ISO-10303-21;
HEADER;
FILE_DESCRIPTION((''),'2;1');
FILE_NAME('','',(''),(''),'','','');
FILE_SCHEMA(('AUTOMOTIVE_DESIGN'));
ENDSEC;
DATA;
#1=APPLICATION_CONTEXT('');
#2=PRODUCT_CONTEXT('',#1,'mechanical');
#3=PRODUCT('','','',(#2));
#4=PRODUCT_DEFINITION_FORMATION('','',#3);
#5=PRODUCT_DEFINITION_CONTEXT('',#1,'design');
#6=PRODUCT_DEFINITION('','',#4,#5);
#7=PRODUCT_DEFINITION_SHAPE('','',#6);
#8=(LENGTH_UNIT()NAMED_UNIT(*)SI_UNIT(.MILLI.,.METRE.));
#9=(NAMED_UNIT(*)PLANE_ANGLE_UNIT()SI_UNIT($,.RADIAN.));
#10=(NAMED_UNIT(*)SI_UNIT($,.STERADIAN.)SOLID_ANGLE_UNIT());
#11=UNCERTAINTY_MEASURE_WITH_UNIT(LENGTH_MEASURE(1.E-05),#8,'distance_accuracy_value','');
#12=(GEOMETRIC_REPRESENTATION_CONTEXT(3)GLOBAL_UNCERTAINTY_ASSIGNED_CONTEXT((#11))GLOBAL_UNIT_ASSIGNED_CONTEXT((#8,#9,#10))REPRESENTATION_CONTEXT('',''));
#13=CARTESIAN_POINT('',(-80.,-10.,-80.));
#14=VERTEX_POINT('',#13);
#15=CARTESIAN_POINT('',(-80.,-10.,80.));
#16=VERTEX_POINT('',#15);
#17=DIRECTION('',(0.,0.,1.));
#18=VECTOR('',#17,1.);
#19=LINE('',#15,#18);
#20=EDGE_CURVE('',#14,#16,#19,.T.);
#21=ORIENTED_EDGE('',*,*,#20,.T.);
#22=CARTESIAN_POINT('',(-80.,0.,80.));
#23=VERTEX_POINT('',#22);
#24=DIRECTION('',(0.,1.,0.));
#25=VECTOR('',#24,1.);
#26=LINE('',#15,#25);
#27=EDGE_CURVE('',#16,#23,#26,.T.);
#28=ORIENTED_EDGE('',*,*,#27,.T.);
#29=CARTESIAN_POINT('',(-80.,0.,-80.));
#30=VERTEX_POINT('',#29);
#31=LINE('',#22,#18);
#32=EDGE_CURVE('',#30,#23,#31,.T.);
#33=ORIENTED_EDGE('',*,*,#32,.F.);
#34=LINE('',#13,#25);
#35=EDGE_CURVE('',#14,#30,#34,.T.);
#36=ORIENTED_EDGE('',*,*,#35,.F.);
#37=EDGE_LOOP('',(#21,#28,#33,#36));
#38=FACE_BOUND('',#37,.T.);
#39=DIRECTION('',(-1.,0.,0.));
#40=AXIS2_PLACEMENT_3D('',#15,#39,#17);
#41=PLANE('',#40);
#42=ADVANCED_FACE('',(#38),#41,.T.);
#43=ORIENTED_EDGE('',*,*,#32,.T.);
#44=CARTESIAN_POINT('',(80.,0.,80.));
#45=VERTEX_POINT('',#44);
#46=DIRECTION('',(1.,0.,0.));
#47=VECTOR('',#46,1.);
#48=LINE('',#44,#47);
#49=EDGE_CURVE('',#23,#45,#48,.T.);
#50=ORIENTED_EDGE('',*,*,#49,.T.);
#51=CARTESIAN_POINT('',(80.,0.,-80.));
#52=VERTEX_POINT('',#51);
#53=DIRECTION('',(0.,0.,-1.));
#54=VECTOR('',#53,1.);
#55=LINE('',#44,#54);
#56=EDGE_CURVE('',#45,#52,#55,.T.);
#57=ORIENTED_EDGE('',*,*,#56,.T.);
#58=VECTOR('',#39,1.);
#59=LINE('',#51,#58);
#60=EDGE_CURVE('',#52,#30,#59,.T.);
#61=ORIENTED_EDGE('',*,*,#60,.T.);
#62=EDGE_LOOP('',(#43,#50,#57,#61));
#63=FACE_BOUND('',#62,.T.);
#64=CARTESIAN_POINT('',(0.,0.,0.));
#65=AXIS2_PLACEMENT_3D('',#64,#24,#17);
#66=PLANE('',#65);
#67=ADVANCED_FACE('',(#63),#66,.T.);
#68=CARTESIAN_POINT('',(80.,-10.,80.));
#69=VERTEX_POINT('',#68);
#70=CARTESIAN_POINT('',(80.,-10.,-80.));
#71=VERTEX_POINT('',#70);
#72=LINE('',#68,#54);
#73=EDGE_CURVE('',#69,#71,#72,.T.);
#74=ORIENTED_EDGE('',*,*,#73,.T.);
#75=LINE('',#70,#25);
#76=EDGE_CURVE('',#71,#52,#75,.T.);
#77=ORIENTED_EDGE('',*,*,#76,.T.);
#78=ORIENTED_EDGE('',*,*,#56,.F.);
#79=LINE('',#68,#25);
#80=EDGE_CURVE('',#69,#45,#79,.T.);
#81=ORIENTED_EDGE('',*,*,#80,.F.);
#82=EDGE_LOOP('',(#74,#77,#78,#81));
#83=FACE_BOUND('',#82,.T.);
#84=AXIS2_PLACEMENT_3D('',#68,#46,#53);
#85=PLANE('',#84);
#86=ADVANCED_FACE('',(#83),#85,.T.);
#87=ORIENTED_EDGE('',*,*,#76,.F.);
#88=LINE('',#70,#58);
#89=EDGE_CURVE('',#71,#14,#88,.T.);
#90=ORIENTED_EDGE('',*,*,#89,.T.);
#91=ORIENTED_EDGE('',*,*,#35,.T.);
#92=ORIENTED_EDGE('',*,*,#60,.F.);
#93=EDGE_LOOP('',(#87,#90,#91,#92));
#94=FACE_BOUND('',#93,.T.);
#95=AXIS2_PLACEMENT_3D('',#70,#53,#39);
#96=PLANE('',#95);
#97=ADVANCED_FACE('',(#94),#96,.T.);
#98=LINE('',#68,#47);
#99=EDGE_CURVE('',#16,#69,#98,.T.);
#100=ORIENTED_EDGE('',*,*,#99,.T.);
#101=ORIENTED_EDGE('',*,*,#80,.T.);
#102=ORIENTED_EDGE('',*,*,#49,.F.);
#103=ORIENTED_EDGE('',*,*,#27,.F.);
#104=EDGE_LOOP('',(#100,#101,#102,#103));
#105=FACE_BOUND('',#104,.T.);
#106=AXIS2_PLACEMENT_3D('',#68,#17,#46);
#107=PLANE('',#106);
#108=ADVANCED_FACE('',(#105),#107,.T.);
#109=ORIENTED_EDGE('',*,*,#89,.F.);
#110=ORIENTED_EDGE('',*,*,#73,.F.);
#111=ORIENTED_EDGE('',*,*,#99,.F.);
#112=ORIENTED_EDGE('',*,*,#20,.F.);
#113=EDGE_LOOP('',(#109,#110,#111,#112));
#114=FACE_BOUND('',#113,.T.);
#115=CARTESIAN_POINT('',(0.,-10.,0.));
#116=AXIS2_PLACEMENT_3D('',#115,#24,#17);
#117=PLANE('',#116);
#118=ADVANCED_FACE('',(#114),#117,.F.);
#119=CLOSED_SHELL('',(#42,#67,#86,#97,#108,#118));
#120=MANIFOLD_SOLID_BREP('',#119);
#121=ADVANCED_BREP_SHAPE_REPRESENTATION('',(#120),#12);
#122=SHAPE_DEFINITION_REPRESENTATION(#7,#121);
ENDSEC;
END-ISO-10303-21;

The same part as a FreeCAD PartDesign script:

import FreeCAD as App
import Part
import Sketcher
from FreeCAD import Vector
Q = App.Units.Quantity


def add_polygon(sketch, points):
    """Adds a closed chain of lines whose ends are joined by coincident constraints."""
    first, n = sketch.GeometryCount, len(points)
    for a, b in zip(points, points[1:] + points[:1]):
        sketch.addGeometry(Part.LineSegment(App.Vector(*a, 0), App.Vector(*b, 0)), False)
    for i in range(n):
        sketch.addConstraint(Sketcher.Constraint("Coincident", first + i, 2, first + (i + 1) % n, 1))

doc = App.newDocument("Part")
body = doc.addObject("PartDesign::Body", "Body")

sketch1 = body.newObject("Sketcher::SketchObject", "Sketch")
sketch1.AttachmentSupport = (doc.getObject("XZ_Plane"), [""])
sketch1.MapMode = "FlatFace"
add_polygon(sketch1, [(-80, -80), (-80, 80), (80, 80), (80, -80)])
sketch1.addConstraint(Sketcher.Constraint("Vertical", 0))
sketch1.addConstraint(Sketcher.Constraint("Horizontal", 1))
sketch1.addConstraint(Sketcher.Constraint("Vertical", 2))
sketch1.addConstraint(Sketcher.Constraint("Horizontal", 3))
sketch1.addConstraint(Sketcher.Constraint("Symmetric", 0, 2, 2, 2, -1, 1))
sketch1.addConstraint(Sketcher.Constraint("Equal", 3, 0))
sketch1.addConstraint(Sketcher.Constraint("DistanceX", 1, 1, 1, 2, Q("160 mm")))
pad1 = body.newObject("PartDesign::Pad", "Pad")
pad1.Profile = sketch1
pad1.Length = 10

doc.recompute()
